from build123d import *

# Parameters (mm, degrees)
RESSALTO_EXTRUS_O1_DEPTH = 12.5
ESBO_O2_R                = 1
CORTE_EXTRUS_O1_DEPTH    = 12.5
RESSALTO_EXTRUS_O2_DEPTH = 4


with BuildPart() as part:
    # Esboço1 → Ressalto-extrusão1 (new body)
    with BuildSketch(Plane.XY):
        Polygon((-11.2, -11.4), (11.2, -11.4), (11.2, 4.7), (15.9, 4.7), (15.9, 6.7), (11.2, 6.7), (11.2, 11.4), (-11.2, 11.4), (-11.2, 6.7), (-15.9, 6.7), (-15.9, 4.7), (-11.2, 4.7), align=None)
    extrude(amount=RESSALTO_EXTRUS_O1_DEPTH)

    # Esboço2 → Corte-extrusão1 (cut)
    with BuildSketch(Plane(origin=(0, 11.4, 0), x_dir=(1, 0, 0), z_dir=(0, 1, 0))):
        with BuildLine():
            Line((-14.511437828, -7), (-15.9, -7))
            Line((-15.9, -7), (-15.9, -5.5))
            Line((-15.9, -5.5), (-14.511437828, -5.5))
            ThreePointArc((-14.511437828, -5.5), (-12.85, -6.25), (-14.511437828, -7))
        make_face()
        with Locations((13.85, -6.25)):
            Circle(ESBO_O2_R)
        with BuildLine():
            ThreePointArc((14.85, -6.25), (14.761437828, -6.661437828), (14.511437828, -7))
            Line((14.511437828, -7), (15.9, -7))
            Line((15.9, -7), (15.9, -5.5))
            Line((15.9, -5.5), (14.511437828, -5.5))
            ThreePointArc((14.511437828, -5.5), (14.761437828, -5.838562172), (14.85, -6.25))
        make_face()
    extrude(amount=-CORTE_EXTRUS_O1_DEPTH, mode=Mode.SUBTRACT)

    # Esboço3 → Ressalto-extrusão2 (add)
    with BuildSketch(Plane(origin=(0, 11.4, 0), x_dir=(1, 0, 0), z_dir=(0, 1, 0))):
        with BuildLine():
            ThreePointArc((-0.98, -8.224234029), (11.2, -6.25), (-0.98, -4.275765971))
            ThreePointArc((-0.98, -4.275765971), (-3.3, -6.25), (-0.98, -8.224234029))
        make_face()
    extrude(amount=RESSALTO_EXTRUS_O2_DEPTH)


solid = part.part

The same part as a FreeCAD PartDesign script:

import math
import FreeCAD as App
import Part
import Sketcher

V = App.Vector
Q = App.Units.Quantity

doc = App.newDocument("Part")
body = doc.addObject("PartDesign::Body", "Body")

sketch1 = body.newObject("Sketcher::SketchObject", "Sketch")
sketch1.AttachmentSupport = (doc.getObject("XY_Plane"), [""])
sketch1.MapMode = "FlatFace"
sketch1.addGeometry([
    Part.LineSegment(V(-11.2, -11.4, 0), V(11.2, -11.4, 0)),
    Part.LineSegment(V(11.2, -11.4, 0), V(11.2, 4.7, 0)),
    Part.LineSegment(V(11.2, 4.7, 0), V(15.9, 4.7, 0)),
    Part.LineSegment(V(15.9, 4.7, 0), V(15.9, 6.7, 0)),
    Part.LineSegment(V(15.9, 6.7, 0), V(11.2, 6.7, 0)),
    Part.LineSegment(V(11.2, 6.7, 0), V(11.2, 11.4, 0)),
    Part.LineSegment(V(11.2, 11.4, 0), V(-11.2, 11.4, 0)),
    Part.LineSegment(V(-11.2, 11.4, 0), V(-11.2, 6.7, 0)),
    Part.LineSegment(V(-11.2, 6.7, 0), V(-15.9, 6.7, 0)),
    Part.LineSegment(V(-15.9, 6.7, 0), V(-15.9, 4.7, 0)),
    Part.LineSegment(V(-15.9, 4.7, 0), V(-11.2, 4.7, 0)),
    Part.LineSegment(V(-11.2, 4.7, 0), V(-11.2, -11.4, 0)),
], False)
sketch1.addConstraint([
    Sketcher.Constraint("Coincident", 0, 2, 1, 1),
    Sketcher.Constraint("Coincident", 1, 2, 2, 1),
    Sketcher.Constraint("Coincident", 2, 2, 3, 1),
    Sketcher.Constraint("Coincident", 3, 2, 4, 1),
    Sketcher.Constraint("Coincident", 4, 2, 5, 1),
    Sketcher.Constraint("Coincident", 5, 2, 6, 1),
    Sketcher.Constraint("Coincident", 6, 2, 7, 1),
    Sketcher.Constraint("Coincident", 7, 2, 8, 1),
    Sketcher.Constraint("Coincident", 8, 2, 9, 1),
    Sketcher.Constraint("Coincident", 9, 2, 10, 1),
    Sketcher.Constraint("Coincident", 10, 2, 11, 1),
    Sketcher.Constraint("Coincident", 11, 2, 0, 1),
    Sketcher.Constraint("Horizontal", 0),
    Sketcher.Constraint("Vertical", 1),
    Sketcher.Constraint("Horizontal", 2),
    Sketcher.Constraint("Vertical", 3),
    Sketcher.Constraint("Horizontal", 4),
    Sketcher.Constraint("Vertical", 5),
    Sketcher.Constraint("Horizontal", 6),
    Sketcher.Constraint("Vertical", 7),
    Sketcher.Constraint("Horizontal", 8),
    Sketcher.Constraint("Vertical", 9),
    Sketcher.Constraint("Horizontal", 10),
    Sketcher.Constraint("Vertical", 11),
    Sketcher.Constraint("Symmetric", 0, 2, 6, 2, -1, 1),
    Sketcher.Constraint("Symmetric", 4, 2, 7, 2, -2),
    Sketcher.Constraint("Symmetric", 2, 2, 9, 2, -2),
    Sketcher.Constraint("Vertical", 7, 2, 10, 2),
    Sketcher.Constraint("Equal", 10, 5),
    Sketcher.Constraint("DistanceY", 3, 1, 3, 2, Q("2 mm")),
    Sketcher.Constraint("DistanceX", 0, 1, 0, 2, Q("22.4 mm")),
    Sketcher.Constraint("DistanceX", 2, 1, 2, 2, Q("4.7 mm")),
    Sketcher.Constraint("DistanceY", 1, 1, 1, 2, Q("16.1 mm")),
])
pad1 = body.newObject("PartDesign::Pad", "Pad")
pad1.Profile = sketch1
pad1.Length = 12.5

sketch2 = body.newObject("Sketcher::SketchObject", "Sketch001")
sketch2.AttachmentSupport = (doc.getObject("XZ_Plane"), [""])
sketch2.MapMode = "FlatFace"
sketch2.AttachmentOffset = App.Placement(V(0, 0, -11.4), App.Rotation())
sketch2.addGeometry([
    Part.LineSegment(V(-15.9, 7, 0), V(-14.511438, 7, 0)),
    Part.ArcOfCircle(Part.Circle(V(-13.85, 6.25, 0), V(0, 0, 1), 1), math.radians(-131.409622), math.radians(131.409622)),
    Part.LineSegment(V(-14.511438, 5.5, 0), V(-15.9, 5.5, 0)),
    Part.LineSegment(V(-15.9, 5.5, 0), V(-15.9, 7, 0)),
    Part.ArcOfCircle(Part.Circle(V(13.85, 6.25, 0), V(0, 0, 1), 1), math.radians(48.590378), math.radians(311.409622)),
    Part.LineSegment(V(14.511438, 7, 0), V(15.9, 7, 0)),
    Part.LineSegment(V(15.9, 7, 0), V(15.9, 5.5, 0)),
    Part.LineSegment(V(15.9, 5.5, 0), V(14.511438, 5.5, 0)),
], False)
sketch2.addConstraint([
    Sketcher.Constraint("Coincident", 0, 2, 1, 2),
    Sketcher.Constraint("Coincident", 1, 1, 2, 1),
    Sketcher.Constraint("Coincident", 2, 2, 3, 1),
    Sketcher.Constraint("Coincident", 3, 2, 0, 1),
    Sketcher.Constraint("Coincident", 4, 1, 5, 1),
    Sketcher.Constraint("Coincident", 5, 2, 6, 1),
    Sketcher.Constraint("Coincident", 6, 2, 7, 1),
    Sketcher.Constraint("Coincident", 7, 2, 4, 2),
    Sketcher.Constraint("Horizontal", 0),
    Sketcher.Constraint("Horizontal", 2),
    Sketcher.Constraint("Vertical", 3),
    Sketcher.Constraint("Horizontal", 5),
    Sketcher.Constraint("Vertical", 6),
    Sketcher.Constraint("Horizontal", 7),
    Sketcher.Constraint("Equal", 1, 4),
    Sketcher.Constraint("Symmetric", 1, 3, 4, 3, -2),
    Sketcher.Constraint("Symmetric", 3, 2, 5, 2, -2),
    Sketcher.Constraint("Horizontal", 2, 2, 6, 2),
    Sketcher.Constraint("Vertical", 0, 2, 1, 1),
    Sketcher.Constraint("Radius", 1, Q("1 mm")),
    Sketcher.Constraint("DistanceY", 3, 1, 3, 2, Q("1.5 mm")),
    Sketcher.Constraint("DistanceY", -1, 1, 0, 2, Q("7 mm")),
    Sketcher.Constraint("DistanceX", 2, 2, -1, 1, Q("15.9 mm")),
    Sketcher.Constraint("DistanceX", 1, 3, 4, 3, Q("27.7 mm")),
])
pocket1 = body.newObject("PartDesign::Pocket", "Pocket")
pocket1.Profile = sketch2
pocket1.Length = 12.5
pocket1.Reversed = True

sketch3 = body.newObject("Sketcher::SketchObject", "Sketch002")
sketch3.AttachmentSupport = (doc.getObject("XZ_Plane"), [""])
sketch3.MapMode = "FlatFace"
sketch3.AttachmentOffset = App.Placement(V(0, 0, -11.4), App.Rotation())
sketch3.addGeometry([
    Part.ArcOfCircle(Part.Circle(V(4.95, 6.25, 0), V(0, 0, 1), 6.25), math.radians(-161.586208), math.radians(161.586208)),
    Part.ArcOfCircle(Part.Circle(V(-1.3, 6.25, 0), V(0, 0, 1), 2), math.radians(80.793104), math.radians(279.206896)),
], False)
sketch3.addConstraint([
    Sketcher.Constraint("Coincident", 0, 1, 1, 2),
    Sketcher.Constraint("Coincident", 1, 1, 0, 2),
    Sketcher.Constraint("Horizontal", 0, 3, 1, 3),
    Sketcher.Constraint("Radius", 1, Q("2 mm")),
    Sketcher.Constraint("Radius", 0, Q("6.25 mm")),
    Sketcher.Constraint("DistanceX", 1, 3, -1, 1, Q("1.3 mm")),
    Sketcher.Constraint("DistanceX", -1, 1, 0, 3, Q("4.95 mm")),
    Sketcher.Constraint("DistanceY", -1, 1, 0, 3, Q("6.25 mm")),
])
pad2 = body.newObject("PartDesign::Pad", "Pad001")
pad2.Profile = sketch3
pad2.Length = 4
pad2.Reversed = True

doc.recompute()
